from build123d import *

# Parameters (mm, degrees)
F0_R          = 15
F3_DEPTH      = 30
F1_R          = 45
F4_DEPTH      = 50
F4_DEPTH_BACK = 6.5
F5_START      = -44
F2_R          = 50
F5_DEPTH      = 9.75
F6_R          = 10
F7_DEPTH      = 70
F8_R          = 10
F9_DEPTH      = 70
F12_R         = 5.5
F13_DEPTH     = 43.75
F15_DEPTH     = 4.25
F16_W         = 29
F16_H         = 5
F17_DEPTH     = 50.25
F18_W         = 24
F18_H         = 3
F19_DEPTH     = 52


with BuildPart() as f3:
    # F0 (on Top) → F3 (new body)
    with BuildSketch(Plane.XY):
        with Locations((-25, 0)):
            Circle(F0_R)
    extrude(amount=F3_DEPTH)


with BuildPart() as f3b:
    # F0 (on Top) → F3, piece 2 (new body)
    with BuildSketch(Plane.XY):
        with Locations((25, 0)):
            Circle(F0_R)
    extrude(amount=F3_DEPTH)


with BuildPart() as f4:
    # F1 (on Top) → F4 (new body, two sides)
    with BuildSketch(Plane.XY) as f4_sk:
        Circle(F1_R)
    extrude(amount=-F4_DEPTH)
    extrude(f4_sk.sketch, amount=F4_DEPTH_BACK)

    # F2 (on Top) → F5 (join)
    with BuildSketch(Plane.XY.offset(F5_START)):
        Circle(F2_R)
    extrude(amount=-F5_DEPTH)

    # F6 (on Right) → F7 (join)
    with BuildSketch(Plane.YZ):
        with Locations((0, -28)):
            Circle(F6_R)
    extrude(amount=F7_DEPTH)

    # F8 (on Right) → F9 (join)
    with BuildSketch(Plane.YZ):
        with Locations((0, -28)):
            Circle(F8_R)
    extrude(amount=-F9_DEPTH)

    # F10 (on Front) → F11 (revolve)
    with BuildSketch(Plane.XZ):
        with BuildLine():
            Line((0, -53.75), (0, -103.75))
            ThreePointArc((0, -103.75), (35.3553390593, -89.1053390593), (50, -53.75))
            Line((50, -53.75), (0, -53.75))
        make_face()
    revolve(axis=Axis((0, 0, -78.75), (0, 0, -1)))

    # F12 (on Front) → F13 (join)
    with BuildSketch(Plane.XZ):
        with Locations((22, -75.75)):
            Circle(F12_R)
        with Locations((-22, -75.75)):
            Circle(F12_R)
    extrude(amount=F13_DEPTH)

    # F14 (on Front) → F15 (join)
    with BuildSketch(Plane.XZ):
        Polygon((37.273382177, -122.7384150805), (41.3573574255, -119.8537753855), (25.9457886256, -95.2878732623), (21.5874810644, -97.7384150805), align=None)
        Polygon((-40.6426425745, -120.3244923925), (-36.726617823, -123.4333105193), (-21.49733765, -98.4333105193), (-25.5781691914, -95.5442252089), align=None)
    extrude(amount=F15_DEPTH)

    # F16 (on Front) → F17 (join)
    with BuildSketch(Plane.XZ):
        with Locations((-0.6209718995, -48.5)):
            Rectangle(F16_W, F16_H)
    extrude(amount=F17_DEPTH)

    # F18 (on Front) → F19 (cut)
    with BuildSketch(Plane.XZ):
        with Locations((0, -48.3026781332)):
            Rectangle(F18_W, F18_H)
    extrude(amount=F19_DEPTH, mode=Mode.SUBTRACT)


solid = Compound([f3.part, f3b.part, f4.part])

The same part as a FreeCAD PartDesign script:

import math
import FreeCAD as App
import Part
import Sketcher

doc = App.newDocument("Part")
body = doc.addObject("PartDesign::Body", "Body")

# Sketch on XY plane
sketch1 = body.newObject("Sketcher::SketchObject", "Sketch")
sketch1.AttachmentSupport = (doc.getObject("XY_Plane"), [""])
sketch1.MapMode = "FlatFace"
sketch1.addGeometry(Part.Circle(App.Vector(-25, 0, 0), App.Vector(0, 0, 1), 15), False)
sketch1.addConstraint([
    Sketcher.Constraint("PointOnObject", 0, 3, -1),
    Sketcher.Constraint("Diameter", 0, 30.0),
    Sketcher.Constraint("DistanceX", 0, 3, -1, 1, 25.0),
])
pad1 = body.newObject("PartDesign::Pad", "Pad")
pad1.Profile = sketch1
pad1.Length = 30
body2 = doc.addObject("PartDesign::Body", "Body001")

# Sketch on XY plane
sketch2 = body2.newObject("Sketcher::SketchObject", "Sketch001")
sketch2.AttachmentSupport = (doc.getObject("XY_Plane001"), [""])
sketch2.MapMode = "FlatFace"
sketch2.addGeometry(Part.Circle(App.Vector(25, 0, 0), App.Vector(0, 0, 1), 15), False)
sketch2.addConstraint([
    Sketcher.Constraint("PointOnObject", 0, 3, -1),
    Sketcher.Constraint("Diameter", 0, 30.0),
    Sketcher.Constraint("DistanceX", -1, 1, 0, 3, 25.0),
])
pad2 = body2.newObject("PartDesign::Pad", "Pad001")
pad2.Profile = sketch2
pad2.Length = 30
body3 = doc.addObject("PartDesign::Body", "Body002")

# Sketch on XY plane
sketch3 = body3.newObject("Sketcher::SketchObject", "Sketch002")
sketch3.AttachmentSupport = (doc.getObject("XY_Plane002"), [""])
sketch3.MapMode = "FlatFace"
sketch3.addGeometry(Part.Circle(App.Vector(0, 0, 0), App.Vector(0, 0, 1), 45), False)
sketch3.addConstraint([
    Sketcher.Constraint("Coincident", 0, 3, -1, 1),
    Sketcher.Constraint("Diameter", 0, 90.0),
])
pad3 = body3.newObject("PartDesign::Pad", "Pad002")
pad3.Profile = sketch3
pad3.Type = "TwoLengths"
pad3.Length = 50
pad3.Length2 = 6.5
pad3.Reversed = True

# Sketch on XY plane
sketch4 = body3.newObject("Sketcher::SketchObject", "Sketch003")
sketch4.AttachmentSupport = (doc.getObject("XY_Plane002"), [""])
sketch4.MapMode = "FlatFace"
sketch4.AttachmentOffset = App.Placement(App.Vector(0, 0, -44), App.Rotation())
sketch4.addGeometry(Part.Circle(App.Vector(0, 0, 0), App.Vector(0, 0, 1), 50), False)
sketch4.addConstraint([
    Sketcher.Constraint("Coincident", 0, 3, -1, 1),
    Sketcher.Constraint("Diameter", 0, 100.0),
])
pad4 = body3.newObject("PartDesign::Pad", "Pad003")
pad4.Profile = sketch4
pad4.Length = 9.75
pad4.Reversed = True

# Sketch on YZ plane
sketch5 = body3.newObject("Sketcher::SketchObject", "Sketch004")
sketch5.AttachmentSupport = (doc.getObject("YZ_Plane002"), [""])
sketch5.MapMode = "FlatFace"
sketch5.addGeometry(Part.Circle(App.Vector(0, -28, 0), App.Vector(0, 0, 1), 10), False)
sketch5.addConstraint([
    Sketcher.Constraint("PointOnObject", 0, 3, -2),
    Sketcher.Constraint("Diameter", 0, 20.0),
    Sketcher.Constraint("DistanceY", 0, 3, -1, 1, 28.0),
])
pad5 = body3.newObject("PartDesign::Pad", "Pad004")
pad5.Profile = sketch5
pad5.Length = 70

# Sketch on YZ plane
sketch6 = body3.newObject("Sketcher::SketchObject", "Sketch005")
sketch6.AttachmentSupport = (doc.getObject("YZ_Plane002"), [""])
sketch6.MapMode = "FlatFace"
sketch6.addGeometry(Part.Circle(App.Vector(0, -28, 0), App.Vector(0, 0, 1), 10), False)
sketch6.addConstraint([
    Sketcher.Constraint("PointOnObject", 0, 3, -2),
    Sketcher.Constraint("Diameter", 0, 20.0),
    Sketcher.Constraint("DistanceY", 0, 3, -1, 1, 28.0),
])
pad6 = body3.newObject("PartDesign::Pad", "Pad005")
pad6.Profile = sketch6
pad6.Length = 70
pad6.Reversed = True

# Sketch on XZ plane
sketch7 = body3.newObject("Sketcher::SketchObject", "Sketch006")
sketch7.AttachmentSupport = (doc.getObject("XZ_Plane002"), [""])
sketch7.MapMode = "FlatFace"
sketch7.addGeometry([
    Part.LineSegment(App.Vector(0, -54, 0), App.Vector(0, -104, 0)),
    Part.ArcOfCircle(Part.Circle(App.Vector(0, -54, 0), App.Vector(0, 0, 1), 50), math.radians(-90), math.radians(0)),
    Part.LineSegment(App.Vector(50, -54, 0), App.Vector(0, -54, 0)),
], False)
sketch7.addConstraint([
    Sketcher.Constraint("Coincident", 0, 2, 1, 1),
    Sketcher.Constraint("Coincident", 1, 2, 2, 1),
    Sketcher.Constraint("Coincident", 2, 2, 0, 1),
    Sketcher.Constraint("Vertical", 0),
    Sketcher.Constraint("Horizontal", 2),
    Sketcher.Constraint("Coincident", 2, 2, 1, 3),
    Sketcher.Constraint("PointOnObject", 1, 3, -2),
    Sketcher.Constraint("Radius", 1, 50.0),
    Sketcher.Constraint("DistanceY", 1, 3, -1, 1, 53.75),
])
revolution = body3.newObject("PartDesign::Revolution", "Revolution")
revolution.Profile = sketch7
revolution.ReferenceAxis = (sketch7, ["V_Axis"])
revolution.Angle = 360

# Sketch on XZ plane
sketch8 = body3.newObject("Sketcher::SketchObject", "Sketch007")
sketch8.AttachmentSupport = (doc.getObject("XZ_Plane002"), [""])
sketch8.MapMode = "FlatFace"
sketch8.addGeometry([
    Part.Circle(App.Vector(22, -76, 0), App.Vector(0, 0, 1), 6),
    Part.Circle(App.Vector(-22, -76, 0), App.Vector(0, 0, 1), 6),
], False)
sketch8.addConstraint([
    Sketcher.Constraint("Equal", 0, 1),
    Sketcher.Constraint("Symmetric", 0, 3, 1, 3, -2),
    Sketcher.Constraint("Diameter", 0, 11.0),
    Sketcher.Constraint("DistanceX", -1, 1, 0, 3, 22.0),
    Sketcher.Constraint("DistanceY", 0, 3, -1, 1, 75.75),
])
pad7 = body3.newObject("PartDesign::Pad", "Pad006")
pad7.Profile = sketch8
pad7.Length = 43.75

# Sketch on XZ plane
sketch9 = body3.newObject("Sketcher::SketchObject", "Sketch008")
sketch9.AttachmentSupport = (doc.getObject("XZ_Plane002"), [""])
sketch9.MapMode = "FlatFace"
sketch9.addGeometry([
    Part.LineSegment(App.Vector(37.3, -122.7, 0), App.Vector(41.4, -119.9, 0)),  # 0
    Part.LineSegment(App.Vector(41.4, -119.9, 0), App.Vector(25.9, -95.3, 0)),  # 1
    Part.LineSegment(App.Vector(25.9, -95.3, 0), App.Vector(21.6, -97.7, 0)),  # 2
    Part.LineSegment(App.Vector(21.6, -97.7, 0), App.Vector(37.3, -122.7, 0)),  # 3
    Part.LineSegment(App.Vector(-40.6, -120.3, 0), App.Vector(-36.7, -123.4, 0)),  # 4
    Part.LineSegment(App.Vector(-36.7, -123.4, 0), App.Vector(-21.5, -98.4, 0)),  # 5
    Part.LineSegment(App.Vector(-21.5, -98.4, 0), App.Vector(-25.6, -95.5, 0)),  # 6
    Part.LineSegment(App.Vector(-25.6, -95.5, 0), App.Vector(-40.6, -120.3, 0)),  # 7
], False)
sketch9.addConstraint([
    Sketcher.Constraint("Coincident", 0, 2, 1, 1),
    Sketcher.Constraint("Coincident", 1, 2, 2, 1),
    Sketcher.Constraint("Coincident", 2, 2, 3, 1),
    Sketcher.Constraint("Coincident", 3, 2, 0, 1),
    Sketcher.Constraint("Coincident", 4, 2, 5, 1),
    Sketcher.Constraint("Coincident", 5, 2, 6, 1),
    Sketcher.Constraint("Coincident", 6, 2, 7, 1),
    Sketcher.Constraint("Coincident", 7, 2, 4, 1),
    Sketcher.Constraint("Equal", 0, 2),
    Sketcher.Constraint("Equal", 2, 4),
    Sketcher.Constraint("Equal", 4, 6),
    Sketcher.Constraint("Equal", 1, 7),
    Sketcher.Constraint("Distance", 0, 5.0),
    Sketcher.Constraint("Distance", 1, 29.0),
    Sketcher.Constraint("DistanceY", 3, 2, 2, 2, 25.0),
    Sketcher.Constraint("DistanceX", 4, 2, 3, 2, 74.0),
    Sketcher.Constraint("DistanceY", 4, 2, 5, 2, 25.0),
    Sketcher.Constraint("DistanceX", 2, 2, 3, 2, 15.685901),
    Sketcher.Constraint("DistanceX", -1, 1, 1, 2, 25.945789),
    Sketcher.Constraint("DistanceX", -1, 1, 2, 2, 21.587481),
    Sketcher.Constraint("DistanceY", 4, 2, -1, 1, 123.433311),
    Sketcher.Constraint("DistanceX", 6, 2, -1, 1, 25.578169),
    Sketcher.Constraint("DistanceX", 4, 2, 5, 2, 15.22928),
    Sketcher.Constraint("DistanceY", 2, 2, 6, 2, 2.19419),
])
pad8 = body3.newObject("PartDesign::Pad", "Pad007")
pad8.Profile = sketch9
pad8.Length = 4.25

# Sketch on XZ plane
sketch10 = body3.newObject("Sketcher::SketchObject", "Sketch009")
sketch10.AttachmentSupport = (doc.getObject("XZ_Plane002"), [""])
sketch10.MapMode = "FlatFace"
sketch10.addGeometry([
    Part.LineSegment(App.Vector(-15, -46, 0), App.Vector(-15, -51, 0)),
    Part.LineSegment(App.Vector(-15, -51, 0), App.Vector(14, -51, 0)),
    Part.LineSegment(App.Vector(14, -51, 0), App.Vector(14, -46, 0)),
    Part.LineSegment(App.Vector(14, -46, 0), App.Vector(-15, -46, 0)),
], False)
sketch10.addConstraint([
    Sketcher.Constraint("Coincident", 0, 2, 1, 1),
    Sketcher.Constraint("Coincident", 1, 2, 2, 1),
    Sketcher.Constraint("Coincident", 2, 2, 3, 1),
    Sketcher.Constraint("Coincident", 3, 2, 0, 1),
    Sketcher.Constraint("Vertical", 0),
    Sketcher.Constraint("Horizontal", 1),
    Sketcher.Constraint("Vertical", 2),
    Sketcher.Constraint("Horizontal", 3),
    Sketcher.Constraint("DistanceX", 1, 1, 1, 2, 29.0),
    Sketcher.Constraint("DistanceY", 0, 2, 0, 1, 5.0),
    Sketcher.Constraint("DistanceY", 0, 2, -1, 1, 51.0),
    Sketcher.Constraint("DistanceX", 0, 2, -1, 1, 15.120972),
])
pad9 = body3.newObject("PartDesign::Pad", "Pad008")
pad9.Profile = sketch10
pad9.Length = 50.25

# Sketch on XZ plane
sketch11 = body3.newObject("Sketcher::SketchObject", "Sketch010")
sketch11.AttachmentSupport = (doc.getObject("XZ_Plane002"), [""])
sketch11.MapMode = "FlatFace"
sketch11.addGeometry([
    Part.LineSegment(App.Vector(-12, -46.8, 0), App.Vector(-12, -49.8, 0)),
    Part.LineSegment(App.Vector(-12, -49.8, 0), App.Vector(12, -49.8, 0)),
    Part.LineSegment(App.Vector(12, -49.8, 0), App.Vector(12, -46.8, 0)),
    Part.LineSegment(App.Vector(12, -46.8, 0), App.Vector(-12, -46.8, 0)),
], False)
sketch11.addConstraint([
    Sketcher.Constraint("Coincident", 0, 2, 1, 1),
    Sketcher.Constraint("Coincident", 1, 2, 2, 1),
    Sketcher.Constraint("Coincident", 2, 2, 3, 1),
    Sketcher.Constraint("Coincident", 3, 2, 0, 1),
    Sketcher.Constraint("Vertical", 0),
    Sketcher.Constraint("Horizontal", 1),
    Sketcher.Constraint("Vertical", 2),
    Sketcher.Constraint("Horizontal", 3),
    Sketcher.Constraint("DistanceX", 1, 1, 1, 2, 24.0),
    Sketcher.Constraint("DistanceY", 0, 2, 0, 1, 3.0),
    Sketcher.Constraint("DistanceX", 0, 2, -1, 1, 12.0),
    Sketcher.Constraint("DistanceY", 0, 2, -1, 1, 49.802678),
])
pocket1 = body3.newObject("PartDesign::Pocket", "Pocket")
pocket1.Profile = sketch11
pocket1.Length = 52
pocket1.Reversed = True

doc.recompute()
